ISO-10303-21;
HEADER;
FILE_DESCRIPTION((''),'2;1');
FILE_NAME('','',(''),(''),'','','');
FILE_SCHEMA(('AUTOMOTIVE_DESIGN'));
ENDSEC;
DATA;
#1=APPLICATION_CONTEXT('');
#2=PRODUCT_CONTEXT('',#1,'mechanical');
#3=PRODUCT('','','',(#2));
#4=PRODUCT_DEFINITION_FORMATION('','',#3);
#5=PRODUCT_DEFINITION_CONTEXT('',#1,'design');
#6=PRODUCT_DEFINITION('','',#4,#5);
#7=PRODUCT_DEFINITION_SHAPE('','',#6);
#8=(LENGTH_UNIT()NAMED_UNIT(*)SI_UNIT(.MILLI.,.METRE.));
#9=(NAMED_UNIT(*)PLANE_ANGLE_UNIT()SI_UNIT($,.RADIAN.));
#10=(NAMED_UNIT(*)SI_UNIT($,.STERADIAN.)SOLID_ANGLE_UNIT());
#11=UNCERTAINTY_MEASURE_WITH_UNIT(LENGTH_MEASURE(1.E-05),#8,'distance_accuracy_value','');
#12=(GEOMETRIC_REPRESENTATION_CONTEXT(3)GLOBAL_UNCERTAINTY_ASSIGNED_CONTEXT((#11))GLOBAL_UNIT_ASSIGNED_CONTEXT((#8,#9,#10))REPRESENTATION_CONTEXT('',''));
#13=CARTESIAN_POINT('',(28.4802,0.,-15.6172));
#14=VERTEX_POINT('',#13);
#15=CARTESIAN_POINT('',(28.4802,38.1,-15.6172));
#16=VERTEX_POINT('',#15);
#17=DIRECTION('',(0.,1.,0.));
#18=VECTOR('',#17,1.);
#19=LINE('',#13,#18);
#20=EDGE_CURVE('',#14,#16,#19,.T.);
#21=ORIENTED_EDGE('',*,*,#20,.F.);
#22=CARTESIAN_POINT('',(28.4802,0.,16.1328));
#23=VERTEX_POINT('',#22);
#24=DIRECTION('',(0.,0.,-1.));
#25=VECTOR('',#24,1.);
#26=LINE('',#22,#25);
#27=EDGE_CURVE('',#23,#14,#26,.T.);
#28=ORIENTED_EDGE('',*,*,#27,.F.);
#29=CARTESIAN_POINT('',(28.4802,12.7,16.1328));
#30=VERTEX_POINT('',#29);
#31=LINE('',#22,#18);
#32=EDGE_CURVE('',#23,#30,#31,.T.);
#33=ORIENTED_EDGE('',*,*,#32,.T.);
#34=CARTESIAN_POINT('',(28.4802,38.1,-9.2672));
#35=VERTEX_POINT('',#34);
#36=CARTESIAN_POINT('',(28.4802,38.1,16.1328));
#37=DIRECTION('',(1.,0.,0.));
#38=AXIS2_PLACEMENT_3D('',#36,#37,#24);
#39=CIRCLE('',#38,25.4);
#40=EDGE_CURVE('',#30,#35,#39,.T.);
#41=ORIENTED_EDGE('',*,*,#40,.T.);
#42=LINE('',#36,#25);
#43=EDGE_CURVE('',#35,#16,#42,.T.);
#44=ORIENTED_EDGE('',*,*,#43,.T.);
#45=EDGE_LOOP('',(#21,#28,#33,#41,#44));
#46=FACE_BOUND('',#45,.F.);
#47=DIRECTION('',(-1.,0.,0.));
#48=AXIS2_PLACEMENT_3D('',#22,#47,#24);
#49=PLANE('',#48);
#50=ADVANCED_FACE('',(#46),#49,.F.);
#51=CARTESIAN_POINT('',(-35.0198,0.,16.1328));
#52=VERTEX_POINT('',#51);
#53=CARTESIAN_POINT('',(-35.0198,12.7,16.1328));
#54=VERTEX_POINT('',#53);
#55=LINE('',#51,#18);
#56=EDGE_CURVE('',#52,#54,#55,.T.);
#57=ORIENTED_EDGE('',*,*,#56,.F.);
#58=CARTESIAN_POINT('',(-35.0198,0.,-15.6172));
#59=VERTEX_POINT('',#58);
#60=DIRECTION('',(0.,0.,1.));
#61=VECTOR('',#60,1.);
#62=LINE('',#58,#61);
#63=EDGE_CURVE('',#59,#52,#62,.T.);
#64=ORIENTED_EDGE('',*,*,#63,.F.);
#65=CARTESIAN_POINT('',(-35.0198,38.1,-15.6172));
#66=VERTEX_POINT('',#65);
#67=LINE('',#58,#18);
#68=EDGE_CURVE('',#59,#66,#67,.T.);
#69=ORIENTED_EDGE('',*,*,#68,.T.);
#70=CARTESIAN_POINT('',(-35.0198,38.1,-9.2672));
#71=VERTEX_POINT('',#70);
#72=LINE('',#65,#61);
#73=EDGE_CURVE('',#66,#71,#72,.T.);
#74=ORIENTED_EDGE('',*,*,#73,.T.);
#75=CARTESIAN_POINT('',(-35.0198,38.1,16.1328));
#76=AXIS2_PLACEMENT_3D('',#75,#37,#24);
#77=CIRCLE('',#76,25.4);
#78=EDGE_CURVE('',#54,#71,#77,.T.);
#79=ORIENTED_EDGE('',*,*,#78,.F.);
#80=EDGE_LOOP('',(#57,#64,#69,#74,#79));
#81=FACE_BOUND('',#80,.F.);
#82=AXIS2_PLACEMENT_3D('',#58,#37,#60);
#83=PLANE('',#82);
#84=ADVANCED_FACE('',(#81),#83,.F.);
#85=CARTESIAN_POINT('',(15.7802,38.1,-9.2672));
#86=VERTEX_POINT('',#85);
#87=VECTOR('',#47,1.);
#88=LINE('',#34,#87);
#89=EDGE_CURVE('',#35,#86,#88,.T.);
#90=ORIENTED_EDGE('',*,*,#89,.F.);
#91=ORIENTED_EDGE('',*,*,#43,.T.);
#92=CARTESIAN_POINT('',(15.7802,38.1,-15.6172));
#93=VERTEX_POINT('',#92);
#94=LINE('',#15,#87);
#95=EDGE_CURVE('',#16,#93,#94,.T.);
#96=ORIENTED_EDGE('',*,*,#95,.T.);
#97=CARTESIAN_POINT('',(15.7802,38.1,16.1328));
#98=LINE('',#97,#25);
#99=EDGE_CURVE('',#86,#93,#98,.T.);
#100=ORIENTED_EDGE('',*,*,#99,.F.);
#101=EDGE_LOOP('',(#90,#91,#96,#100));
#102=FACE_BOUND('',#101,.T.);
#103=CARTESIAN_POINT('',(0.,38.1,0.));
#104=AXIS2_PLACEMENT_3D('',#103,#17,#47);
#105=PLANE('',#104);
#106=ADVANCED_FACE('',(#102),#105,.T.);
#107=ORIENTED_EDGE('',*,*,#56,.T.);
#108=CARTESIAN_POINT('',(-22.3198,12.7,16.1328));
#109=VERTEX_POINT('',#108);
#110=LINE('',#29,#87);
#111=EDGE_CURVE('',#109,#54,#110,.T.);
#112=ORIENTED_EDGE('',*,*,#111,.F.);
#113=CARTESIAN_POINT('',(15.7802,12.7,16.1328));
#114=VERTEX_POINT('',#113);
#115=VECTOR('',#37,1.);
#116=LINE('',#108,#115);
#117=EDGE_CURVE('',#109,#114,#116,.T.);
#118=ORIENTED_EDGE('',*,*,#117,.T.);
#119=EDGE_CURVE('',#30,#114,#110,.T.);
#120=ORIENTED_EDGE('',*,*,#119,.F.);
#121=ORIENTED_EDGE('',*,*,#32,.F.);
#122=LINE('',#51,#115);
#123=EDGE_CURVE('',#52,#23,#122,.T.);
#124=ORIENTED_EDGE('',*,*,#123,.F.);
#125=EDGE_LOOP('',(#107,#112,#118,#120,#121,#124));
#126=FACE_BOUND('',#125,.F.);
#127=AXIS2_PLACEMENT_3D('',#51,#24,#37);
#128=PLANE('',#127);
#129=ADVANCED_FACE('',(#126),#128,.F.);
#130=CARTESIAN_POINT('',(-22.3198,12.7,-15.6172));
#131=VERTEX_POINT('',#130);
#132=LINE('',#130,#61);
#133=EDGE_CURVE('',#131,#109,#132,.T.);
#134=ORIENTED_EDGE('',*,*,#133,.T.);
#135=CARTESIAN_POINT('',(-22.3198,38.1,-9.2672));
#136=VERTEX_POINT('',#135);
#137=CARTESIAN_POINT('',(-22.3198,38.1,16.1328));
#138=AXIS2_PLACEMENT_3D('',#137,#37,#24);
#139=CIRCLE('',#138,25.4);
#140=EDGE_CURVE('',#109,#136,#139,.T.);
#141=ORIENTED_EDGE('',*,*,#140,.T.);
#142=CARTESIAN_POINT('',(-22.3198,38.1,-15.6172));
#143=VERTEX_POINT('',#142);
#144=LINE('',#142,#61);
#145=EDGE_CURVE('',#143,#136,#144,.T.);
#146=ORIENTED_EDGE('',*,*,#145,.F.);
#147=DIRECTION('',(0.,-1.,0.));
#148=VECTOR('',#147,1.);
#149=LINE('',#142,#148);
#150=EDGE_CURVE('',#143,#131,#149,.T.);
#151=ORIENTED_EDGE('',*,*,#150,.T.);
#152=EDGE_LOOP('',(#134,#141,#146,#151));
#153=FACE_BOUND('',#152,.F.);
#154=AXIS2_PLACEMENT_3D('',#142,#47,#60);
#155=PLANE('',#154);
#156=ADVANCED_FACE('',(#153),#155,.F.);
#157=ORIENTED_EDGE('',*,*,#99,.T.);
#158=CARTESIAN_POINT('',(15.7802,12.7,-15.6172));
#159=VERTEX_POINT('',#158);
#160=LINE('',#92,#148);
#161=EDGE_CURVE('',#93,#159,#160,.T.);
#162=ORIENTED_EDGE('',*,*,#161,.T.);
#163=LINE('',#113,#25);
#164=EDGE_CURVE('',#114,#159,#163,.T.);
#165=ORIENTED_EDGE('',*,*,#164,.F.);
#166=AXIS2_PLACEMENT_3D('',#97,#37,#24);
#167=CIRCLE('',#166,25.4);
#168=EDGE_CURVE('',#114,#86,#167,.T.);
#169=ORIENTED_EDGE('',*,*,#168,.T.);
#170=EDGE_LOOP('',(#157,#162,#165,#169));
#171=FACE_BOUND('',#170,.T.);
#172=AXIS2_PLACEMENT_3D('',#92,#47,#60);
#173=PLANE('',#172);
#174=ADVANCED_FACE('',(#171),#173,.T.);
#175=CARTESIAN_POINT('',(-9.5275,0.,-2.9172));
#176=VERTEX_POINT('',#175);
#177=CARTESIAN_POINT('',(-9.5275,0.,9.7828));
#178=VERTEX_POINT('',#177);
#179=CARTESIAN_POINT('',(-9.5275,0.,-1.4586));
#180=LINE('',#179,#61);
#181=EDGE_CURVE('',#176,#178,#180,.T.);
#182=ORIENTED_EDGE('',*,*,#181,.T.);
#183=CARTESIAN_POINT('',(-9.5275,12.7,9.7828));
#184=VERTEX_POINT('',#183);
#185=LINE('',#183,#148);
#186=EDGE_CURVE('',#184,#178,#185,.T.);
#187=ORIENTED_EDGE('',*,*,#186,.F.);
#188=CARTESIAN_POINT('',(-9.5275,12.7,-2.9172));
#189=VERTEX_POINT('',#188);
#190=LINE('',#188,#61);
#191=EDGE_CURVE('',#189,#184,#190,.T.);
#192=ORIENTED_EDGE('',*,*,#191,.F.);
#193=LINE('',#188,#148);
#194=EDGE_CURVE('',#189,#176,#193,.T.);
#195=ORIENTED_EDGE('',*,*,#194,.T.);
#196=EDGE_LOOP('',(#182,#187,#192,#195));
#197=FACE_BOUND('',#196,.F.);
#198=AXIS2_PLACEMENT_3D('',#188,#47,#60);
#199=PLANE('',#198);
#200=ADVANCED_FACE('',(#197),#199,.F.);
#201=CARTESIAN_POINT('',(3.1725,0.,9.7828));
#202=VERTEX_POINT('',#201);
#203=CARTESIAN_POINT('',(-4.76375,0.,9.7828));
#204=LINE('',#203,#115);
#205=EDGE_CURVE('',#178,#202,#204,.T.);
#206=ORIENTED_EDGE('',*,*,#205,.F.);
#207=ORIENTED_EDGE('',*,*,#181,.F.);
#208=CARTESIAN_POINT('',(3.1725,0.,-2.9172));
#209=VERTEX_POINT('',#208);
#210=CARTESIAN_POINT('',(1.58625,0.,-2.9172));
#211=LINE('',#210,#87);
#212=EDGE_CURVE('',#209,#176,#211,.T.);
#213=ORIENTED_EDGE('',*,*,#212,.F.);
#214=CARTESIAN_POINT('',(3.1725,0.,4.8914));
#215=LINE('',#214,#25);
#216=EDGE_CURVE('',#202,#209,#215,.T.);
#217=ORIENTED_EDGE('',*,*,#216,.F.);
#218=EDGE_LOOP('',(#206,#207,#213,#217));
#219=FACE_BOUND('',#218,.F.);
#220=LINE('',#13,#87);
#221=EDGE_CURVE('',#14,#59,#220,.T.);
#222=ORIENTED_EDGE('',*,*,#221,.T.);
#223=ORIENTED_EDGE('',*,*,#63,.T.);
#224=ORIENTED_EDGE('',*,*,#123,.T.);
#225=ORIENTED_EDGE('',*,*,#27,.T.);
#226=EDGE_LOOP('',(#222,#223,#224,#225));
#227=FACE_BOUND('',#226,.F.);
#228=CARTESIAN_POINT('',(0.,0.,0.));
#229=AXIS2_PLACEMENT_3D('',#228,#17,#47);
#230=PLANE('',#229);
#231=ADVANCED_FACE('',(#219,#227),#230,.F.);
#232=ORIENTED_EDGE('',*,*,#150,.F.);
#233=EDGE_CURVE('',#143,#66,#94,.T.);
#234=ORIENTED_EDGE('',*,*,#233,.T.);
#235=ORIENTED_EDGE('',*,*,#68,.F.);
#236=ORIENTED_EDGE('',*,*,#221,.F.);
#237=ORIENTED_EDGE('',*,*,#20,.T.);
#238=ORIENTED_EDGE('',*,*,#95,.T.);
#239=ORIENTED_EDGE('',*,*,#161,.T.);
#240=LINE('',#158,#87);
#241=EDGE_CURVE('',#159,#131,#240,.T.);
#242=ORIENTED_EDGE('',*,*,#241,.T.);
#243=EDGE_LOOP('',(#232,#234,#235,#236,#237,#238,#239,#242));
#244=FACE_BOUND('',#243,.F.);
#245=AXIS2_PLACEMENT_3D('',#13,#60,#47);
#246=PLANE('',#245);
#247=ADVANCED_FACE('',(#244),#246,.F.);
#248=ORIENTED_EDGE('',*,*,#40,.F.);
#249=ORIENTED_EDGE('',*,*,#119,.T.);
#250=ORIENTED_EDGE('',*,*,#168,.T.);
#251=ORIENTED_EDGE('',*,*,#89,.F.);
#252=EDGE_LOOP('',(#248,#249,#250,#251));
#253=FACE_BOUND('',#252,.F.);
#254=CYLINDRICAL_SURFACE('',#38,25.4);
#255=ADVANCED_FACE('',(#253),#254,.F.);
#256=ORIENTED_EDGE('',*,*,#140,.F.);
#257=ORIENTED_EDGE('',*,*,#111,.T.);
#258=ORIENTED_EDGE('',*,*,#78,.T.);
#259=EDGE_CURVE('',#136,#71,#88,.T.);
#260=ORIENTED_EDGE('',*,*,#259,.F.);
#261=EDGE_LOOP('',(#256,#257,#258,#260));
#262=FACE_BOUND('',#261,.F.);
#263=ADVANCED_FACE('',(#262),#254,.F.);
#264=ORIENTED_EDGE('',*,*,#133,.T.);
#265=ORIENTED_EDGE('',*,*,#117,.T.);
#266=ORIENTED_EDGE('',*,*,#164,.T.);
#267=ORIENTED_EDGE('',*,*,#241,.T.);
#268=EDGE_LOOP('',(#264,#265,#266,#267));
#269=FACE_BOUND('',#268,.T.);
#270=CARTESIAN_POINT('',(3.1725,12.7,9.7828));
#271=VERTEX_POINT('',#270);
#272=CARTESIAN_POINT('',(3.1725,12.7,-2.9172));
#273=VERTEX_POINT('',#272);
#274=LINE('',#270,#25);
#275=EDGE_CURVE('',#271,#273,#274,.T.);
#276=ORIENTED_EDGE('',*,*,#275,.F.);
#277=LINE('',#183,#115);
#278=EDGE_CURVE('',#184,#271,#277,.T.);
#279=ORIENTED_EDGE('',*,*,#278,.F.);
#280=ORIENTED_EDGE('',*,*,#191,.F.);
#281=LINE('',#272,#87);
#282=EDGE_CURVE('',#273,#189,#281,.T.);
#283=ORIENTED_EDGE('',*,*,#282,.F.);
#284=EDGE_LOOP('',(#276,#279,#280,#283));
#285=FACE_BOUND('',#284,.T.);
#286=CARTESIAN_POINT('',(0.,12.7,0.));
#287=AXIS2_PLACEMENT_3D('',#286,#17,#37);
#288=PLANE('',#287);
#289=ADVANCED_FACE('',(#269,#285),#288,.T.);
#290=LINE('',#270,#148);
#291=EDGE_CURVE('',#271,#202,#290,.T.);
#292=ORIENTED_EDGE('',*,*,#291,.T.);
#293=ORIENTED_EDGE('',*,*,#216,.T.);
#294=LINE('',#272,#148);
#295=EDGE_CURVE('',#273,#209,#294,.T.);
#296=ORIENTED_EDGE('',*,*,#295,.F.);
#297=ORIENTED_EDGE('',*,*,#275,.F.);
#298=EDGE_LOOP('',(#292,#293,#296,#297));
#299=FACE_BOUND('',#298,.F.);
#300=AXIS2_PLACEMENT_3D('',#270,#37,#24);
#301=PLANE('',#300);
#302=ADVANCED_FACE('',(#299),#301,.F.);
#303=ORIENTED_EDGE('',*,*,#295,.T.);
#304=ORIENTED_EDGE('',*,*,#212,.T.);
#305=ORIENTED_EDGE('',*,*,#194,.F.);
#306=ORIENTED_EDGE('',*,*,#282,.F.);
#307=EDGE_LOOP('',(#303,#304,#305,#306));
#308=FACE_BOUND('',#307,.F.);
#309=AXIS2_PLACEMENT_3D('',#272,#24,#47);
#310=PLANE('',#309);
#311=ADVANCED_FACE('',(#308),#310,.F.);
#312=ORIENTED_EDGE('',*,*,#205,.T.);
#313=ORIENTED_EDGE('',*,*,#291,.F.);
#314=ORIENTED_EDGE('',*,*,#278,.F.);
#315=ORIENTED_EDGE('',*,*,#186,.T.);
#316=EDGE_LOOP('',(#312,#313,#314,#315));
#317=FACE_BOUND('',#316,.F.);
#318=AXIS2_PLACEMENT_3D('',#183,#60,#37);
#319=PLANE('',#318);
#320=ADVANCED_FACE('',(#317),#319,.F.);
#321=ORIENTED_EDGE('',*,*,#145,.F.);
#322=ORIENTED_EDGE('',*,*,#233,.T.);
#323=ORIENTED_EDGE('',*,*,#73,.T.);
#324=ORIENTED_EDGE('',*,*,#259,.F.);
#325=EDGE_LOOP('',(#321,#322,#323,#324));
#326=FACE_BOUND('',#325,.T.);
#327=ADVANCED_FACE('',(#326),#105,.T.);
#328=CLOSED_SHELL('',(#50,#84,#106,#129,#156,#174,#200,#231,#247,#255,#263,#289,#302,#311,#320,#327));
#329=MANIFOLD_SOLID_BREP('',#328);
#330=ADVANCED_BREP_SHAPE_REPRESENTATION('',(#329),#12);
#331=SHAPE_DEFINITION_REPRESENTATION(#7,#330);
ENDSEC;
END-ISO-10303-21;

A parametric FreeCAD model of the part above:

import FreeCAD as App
import Part
import Sketcher

V = App.Vector
Q = App.Units.Quantity

doc = App.newDocument("Part")
body = doc.addObject("PartDesign::Body", "Body")

sketch1 = body.newObject("Sketcher::SketchObject", "Sketch")
sketch1.AttachmentSupport = (doc.getObject("XZ_Plane"), [""])
sketch1.MapMode = "FlatFace"
sketch1.addGeometry([
    Part.LineSegment(V(-35, -16, 0), V(-35, 16, 0)),
    Part.LineSegment(V(-35, 16, 0), V(28, 16, 0)),
    Part.LineSegment(V(28, 16, 0), V(28, -16, 0)),
    Part.LineSegment(V(28, -16, 0), V(-35, -16, 0)),
], False)
sketch1.addConstraint([
    Sketcher.Constraint("Coincident", 0, 2, 1, 1),
    Sketcher.Constraint("Coincident", 1, 2, 2, 1),
    Sketcher.Constraint("Coincident", 2, 2, 3, 1),
    Sketcher.Constraint("Coincident", 3, 2, 0, 1),
    Sketcher.Constraint("Vertical", 0),
    Sketcher.Constraint("Horizontal", 1),
    Sketcher.Constraint("Vertical", 2),
    Sketcher.Constraint("Horizontal", 3),
    Sketcher.Constraint("DistanceX", 1, 1, 1, 2, Q("2.5 in")),
    Sketcher.Constraint("DistanceY", 0, 1, 0, 2, Q("1.25 in")),
    Sketcher.Constraint("DistanceX", 0, 2, -1, 1, Q("35.0198 mm")),
    Sketcher.Constraint("DistanceY", -1, 1, 0, 2, Q("16.1328 mm")),
])
pad1 = body.newObject("PartDesign::Pad", "Pad")
pad1.Profile = sketch1
pad1.Length = Q("1.5 in")
pad1.Reversed = True

sketch2 = body.newObject("Sketcher::SketchObject", "Sketch001")
sketch2.AttachmentSupport = (doc.getObject("XZ_Plane"), [""])
sketch2.MapMode = "FlatFace"
sketch2.AttachmentOffset = App.Placement(V(0, 0, -1.5 * 25.4), App.Rotation())
sketch2.addGeometry([
    Part.LineSegment(V(16, 16, 0), V(16, -16, 0)),
    Part.LineSegment(V(16, -16, 0), V(-22, -16, 0)),
    Part.LineSegment(V(-22, -16, 0), V(-22, 16, 0)),
    Part.LineSegment(V(-22, 16, 0), V(16, 16, 0)),
], False)
sketch2.addConstraint([
    Sketcher.Constraint("Coincident", 0, 2, 1, 1),
    Sketcher.Constraint("Coincident", 1, 2, 2, 1),
    Sketcher.Constraint("Coincident", 2, 2, 3, 1),
    Sketcher.Constraint("Coincident", 3, 2, 0, 1),
    Sketcher.Constraint("Vertical", 0),
    Sketcher.Constraint("Horizontal", 1),
    Sketcher.Constraint("Vertical", 2),
    Sketcher.Constraint("Horizontal", 3),
    Sketcher.Constraint("DistanceX", 1, 2, 1, 1, Q("1.5 in")),
    Sketcher.Constraint("DistanceY", 0, 2, 0, 1, Q("1.25 in")),
    Sketcher.Constraint("DistanceX", -1, 1, 0, 2, Q("15.7802 mm")),
    Sketcher.Constraint("DistanceY", 0, 2, -1, 1, Q("15.6172 mm")),
])
pocket1 = body.newObject("PartDesign::Pocket", "Pocket")
pocket1.Profile = sketch2
pocket1.Length = Q("1 in")
pocket1.Reversed = True

sketch3 = body.newObject("Sketcher::SketchObject", "Sketch002")
sketch3.AttachmentSupport = (doc.getObject("YZ_Plane"), [""])
sketch3.MapMode = "FlatFace"
sketch3.AttachmentOffset = App.Placement(V(0, 0, 28.4802), App.Rotation())
sketch3.addGeometry(Part.Circle(V(38, 16, 0), V(0, 0, 1), 25), False)
sketch3.addConstraint([
    Sketcher.Constraint("Diameter", 0, Q("2 in")),
    Sketcher.Constraint("DistanceX", -1, 1, 0, 3, Q("1.5 in")),
    Sketcher.Constraint("DistanceY", -1, 1, 0, 3, Q("16.1328 mm")),
])
pocket2 = body.newObject("PartDesign::Pocket", "Pocket001")
pocket2.Profile = sketch3
pocket2.Length = Q("3 in")

sketch4 = body.newObject("Sketcher::SketchObject", "Sketch003")
sketch4.AttachmentSupport = (doc.getObject("XZ_Plane"), [""])
sketch4.MapMode = "FlatFace"
sketch4.AttachmentOffset = App.Placement(V(0, 0, -0.5 * 25.4), App.Rotation())
sketch4.addGeometry([
    Part.LineSegment(V(3, 10, 0), V(3, -3, 0)),
    Part.LineSegment(V(3, -3, 0), V(-10, -3, 0)),
    Part.LineSegment(V(-10, -3, 0), V(-10, 10, 0)),
    Part.LineSegment(V(-10, 10, 0), V(3, 10, 0)),
], False)
sketch4.addConstraint([
    Sketcher.Constraint("Coincident", 0, 2, 1, 1),
    Sketcher.Constraint("Coincident", 1, 2, 2, 1),
    Sketcher.Constraint("Coincident", 2, 2, 3, 1),
    Sketcher.Constraint("Coincident", 3, 2, 0, 1),
    Sketcher.Constraint("Vertical", 0),
    Sketcher.Constraint("Horizontal", 1),
    Sketcher.Constraint("Vertical", 2),
    Sketcher.Constraint("Horizontal", 3),
    Sketcher.Constraint("Equal", 3, 0),
    Sketcher.Constraint("DistanceX", 1, 2, 1, 1, Q("0.5 in")),
    Sketcher.Constraint("DistanceX", -1, 1, 0, 2, Q("0.1249 in")),
    Sketcher.Constraint("DistanceY", 0, 2, -1, 1, Q("2.9172 mm")),
])
pocket3 = body.newObject("PartDesign::Pocket", "Pocket002")
pocket3.Profile = sketch4
pocket3.Length = Q("1 in")
pocket3.Reversed = True

doc.recompute()
